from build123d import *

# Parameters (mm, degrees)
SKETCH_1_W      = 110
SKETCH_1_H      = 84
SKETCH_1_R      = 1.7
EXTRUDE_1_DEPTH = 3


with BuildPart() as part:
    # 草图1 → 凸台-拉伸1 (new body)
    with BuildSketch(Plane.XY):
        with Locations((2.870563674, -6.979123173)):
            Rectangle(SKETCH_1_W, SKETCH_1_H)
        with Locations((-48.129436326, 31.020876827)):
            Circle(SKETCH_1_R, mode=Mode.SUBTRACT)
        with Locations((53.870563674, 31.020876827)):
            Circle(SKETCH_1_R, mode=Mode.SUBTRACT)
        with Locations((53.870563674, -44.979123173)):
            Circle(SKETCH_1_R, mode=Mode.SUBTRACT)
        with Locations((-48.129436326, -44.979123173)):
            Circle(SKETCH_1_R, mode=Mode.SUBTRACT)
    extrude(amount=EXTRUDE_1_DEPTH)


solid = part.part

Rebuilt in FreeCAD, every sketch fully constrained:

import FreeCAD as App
import Part
import Sketcher
from FreeCAD import Vector
Q = App.Units.Quantity


def add_polygon(sketch, points):
    """Adds a closed chain of lines whose ends are joined by coincident constraints."""
    first, n = sketch.GeometryCount, len(points)
    for a, b in zip(points, points[1:] + points[:1]):
        sketch.addGeometry(Part.LineSegment(App.Vector(*a, 0), App.Vector(*b, 0)), False)
    for i in range(n):
        sketch.addConstraint(Sketcher.Constraint("Coincident", first + i, 2, first + (i + 1) % n, 1))

doc = App.newDocument("Part")
body = doc.addObject("PartDesign::Body", "Body")

# Sketch on XY plane
sketch1 = doc.addObject("Sketcher::SketchObject", "Sketch")
body.addObject(sketch1)
sketch1.AttachmentSupport = (doc.XY_Plane, [""])
sketch1.MapMode = "FlatFace"
add_polygon(sketch1, [(-52.129436, 35.020877), (-52.129436, -48.979123), (57.870564, -48.979123), (57.870564, 35.020877)])  # lines 0-3
sketch1.addGeometry(Part.Circle(Vector(-48.129436, -44.979123, 0), Vector(0, 0, 1), 1.7), False)  # 4
sketch1.addGeometry(Part.Circle(Vector(53.870564, -44.979123, 0), Vector(0, 0, 1), 1.7), False)  # 5
sketch1.addGeometry(Part.Circle(Vector(-48.129436, 31.020877, 0), Vector(0, 0, 1), 1.7), False)  # 6
sketch1.addGeometry(Part.Circle(Vector(53.870564, 31.020877, 0), Vector(0, 0, 1), 1.7), False)  # 7
sketch1.addConstraint([
    Sketcher.Constraint("Vertical", 0),
    Sketcher.Constraint("Horizontal", 1),
    Sketcher.Constraint("Vertical", 2),
    Sketcher.Constraint("Horizontal", 3),
    Sketcher.Constraint("Equal", 4, 5),
    Sketcher.Constraint("Equal", 5, 6),
    Sketcher.Constraint("Equal", 6, 7),
    Sketcher.Constraint("Horizontal", 4, 3, 5, 3),
    Sketcher.Constraint("Horizontal", 6, 3, 7, 3),
    Sketcher.Constraint("Vertical", 4, 3, 6, 3),
    Sketcher.Constraint("Vertical", 5, 3, 7, 3),
    Sketcher.Constraint("Diameter", 4, Q("3.4 mm")),
    Sketcher.Constraint("DistanceX", 1, 1, 1, 2, Q("110 mm")),
    Sketcher.Constraint("DistanceY", 0, 2, 0, 1, Q("84 mm")),
    Sketcher.Constraint("DistanceX", 4, 3, 5, 3, Q("102 mm")),
    Sketcher.Constraint("DistanceY", 4, 3, 6, 3, Q("76 mm")),
    Sketcher.Constraint("DistanceX", 0, 2, 4, 3, Q("4 mm")),
    Sketcher.Constraint("DistanceY", 0, 2, 4, 3, Q("4 mm")),
    Sketcher.Constraint("DistanceX", 4, 3, -1, 1, Q("48.129436 mm")),
    Sketcher.Constraint("DistanceY", 4, 3, -1, 1, Q("44.979123 mm")),
])
pad1 = doc.addObject("PartDesign::Pad", "Pad")
body.addObject(pad1)
pad1.Profile = sketch1
pad1.Length = 3

doc.recompute()
